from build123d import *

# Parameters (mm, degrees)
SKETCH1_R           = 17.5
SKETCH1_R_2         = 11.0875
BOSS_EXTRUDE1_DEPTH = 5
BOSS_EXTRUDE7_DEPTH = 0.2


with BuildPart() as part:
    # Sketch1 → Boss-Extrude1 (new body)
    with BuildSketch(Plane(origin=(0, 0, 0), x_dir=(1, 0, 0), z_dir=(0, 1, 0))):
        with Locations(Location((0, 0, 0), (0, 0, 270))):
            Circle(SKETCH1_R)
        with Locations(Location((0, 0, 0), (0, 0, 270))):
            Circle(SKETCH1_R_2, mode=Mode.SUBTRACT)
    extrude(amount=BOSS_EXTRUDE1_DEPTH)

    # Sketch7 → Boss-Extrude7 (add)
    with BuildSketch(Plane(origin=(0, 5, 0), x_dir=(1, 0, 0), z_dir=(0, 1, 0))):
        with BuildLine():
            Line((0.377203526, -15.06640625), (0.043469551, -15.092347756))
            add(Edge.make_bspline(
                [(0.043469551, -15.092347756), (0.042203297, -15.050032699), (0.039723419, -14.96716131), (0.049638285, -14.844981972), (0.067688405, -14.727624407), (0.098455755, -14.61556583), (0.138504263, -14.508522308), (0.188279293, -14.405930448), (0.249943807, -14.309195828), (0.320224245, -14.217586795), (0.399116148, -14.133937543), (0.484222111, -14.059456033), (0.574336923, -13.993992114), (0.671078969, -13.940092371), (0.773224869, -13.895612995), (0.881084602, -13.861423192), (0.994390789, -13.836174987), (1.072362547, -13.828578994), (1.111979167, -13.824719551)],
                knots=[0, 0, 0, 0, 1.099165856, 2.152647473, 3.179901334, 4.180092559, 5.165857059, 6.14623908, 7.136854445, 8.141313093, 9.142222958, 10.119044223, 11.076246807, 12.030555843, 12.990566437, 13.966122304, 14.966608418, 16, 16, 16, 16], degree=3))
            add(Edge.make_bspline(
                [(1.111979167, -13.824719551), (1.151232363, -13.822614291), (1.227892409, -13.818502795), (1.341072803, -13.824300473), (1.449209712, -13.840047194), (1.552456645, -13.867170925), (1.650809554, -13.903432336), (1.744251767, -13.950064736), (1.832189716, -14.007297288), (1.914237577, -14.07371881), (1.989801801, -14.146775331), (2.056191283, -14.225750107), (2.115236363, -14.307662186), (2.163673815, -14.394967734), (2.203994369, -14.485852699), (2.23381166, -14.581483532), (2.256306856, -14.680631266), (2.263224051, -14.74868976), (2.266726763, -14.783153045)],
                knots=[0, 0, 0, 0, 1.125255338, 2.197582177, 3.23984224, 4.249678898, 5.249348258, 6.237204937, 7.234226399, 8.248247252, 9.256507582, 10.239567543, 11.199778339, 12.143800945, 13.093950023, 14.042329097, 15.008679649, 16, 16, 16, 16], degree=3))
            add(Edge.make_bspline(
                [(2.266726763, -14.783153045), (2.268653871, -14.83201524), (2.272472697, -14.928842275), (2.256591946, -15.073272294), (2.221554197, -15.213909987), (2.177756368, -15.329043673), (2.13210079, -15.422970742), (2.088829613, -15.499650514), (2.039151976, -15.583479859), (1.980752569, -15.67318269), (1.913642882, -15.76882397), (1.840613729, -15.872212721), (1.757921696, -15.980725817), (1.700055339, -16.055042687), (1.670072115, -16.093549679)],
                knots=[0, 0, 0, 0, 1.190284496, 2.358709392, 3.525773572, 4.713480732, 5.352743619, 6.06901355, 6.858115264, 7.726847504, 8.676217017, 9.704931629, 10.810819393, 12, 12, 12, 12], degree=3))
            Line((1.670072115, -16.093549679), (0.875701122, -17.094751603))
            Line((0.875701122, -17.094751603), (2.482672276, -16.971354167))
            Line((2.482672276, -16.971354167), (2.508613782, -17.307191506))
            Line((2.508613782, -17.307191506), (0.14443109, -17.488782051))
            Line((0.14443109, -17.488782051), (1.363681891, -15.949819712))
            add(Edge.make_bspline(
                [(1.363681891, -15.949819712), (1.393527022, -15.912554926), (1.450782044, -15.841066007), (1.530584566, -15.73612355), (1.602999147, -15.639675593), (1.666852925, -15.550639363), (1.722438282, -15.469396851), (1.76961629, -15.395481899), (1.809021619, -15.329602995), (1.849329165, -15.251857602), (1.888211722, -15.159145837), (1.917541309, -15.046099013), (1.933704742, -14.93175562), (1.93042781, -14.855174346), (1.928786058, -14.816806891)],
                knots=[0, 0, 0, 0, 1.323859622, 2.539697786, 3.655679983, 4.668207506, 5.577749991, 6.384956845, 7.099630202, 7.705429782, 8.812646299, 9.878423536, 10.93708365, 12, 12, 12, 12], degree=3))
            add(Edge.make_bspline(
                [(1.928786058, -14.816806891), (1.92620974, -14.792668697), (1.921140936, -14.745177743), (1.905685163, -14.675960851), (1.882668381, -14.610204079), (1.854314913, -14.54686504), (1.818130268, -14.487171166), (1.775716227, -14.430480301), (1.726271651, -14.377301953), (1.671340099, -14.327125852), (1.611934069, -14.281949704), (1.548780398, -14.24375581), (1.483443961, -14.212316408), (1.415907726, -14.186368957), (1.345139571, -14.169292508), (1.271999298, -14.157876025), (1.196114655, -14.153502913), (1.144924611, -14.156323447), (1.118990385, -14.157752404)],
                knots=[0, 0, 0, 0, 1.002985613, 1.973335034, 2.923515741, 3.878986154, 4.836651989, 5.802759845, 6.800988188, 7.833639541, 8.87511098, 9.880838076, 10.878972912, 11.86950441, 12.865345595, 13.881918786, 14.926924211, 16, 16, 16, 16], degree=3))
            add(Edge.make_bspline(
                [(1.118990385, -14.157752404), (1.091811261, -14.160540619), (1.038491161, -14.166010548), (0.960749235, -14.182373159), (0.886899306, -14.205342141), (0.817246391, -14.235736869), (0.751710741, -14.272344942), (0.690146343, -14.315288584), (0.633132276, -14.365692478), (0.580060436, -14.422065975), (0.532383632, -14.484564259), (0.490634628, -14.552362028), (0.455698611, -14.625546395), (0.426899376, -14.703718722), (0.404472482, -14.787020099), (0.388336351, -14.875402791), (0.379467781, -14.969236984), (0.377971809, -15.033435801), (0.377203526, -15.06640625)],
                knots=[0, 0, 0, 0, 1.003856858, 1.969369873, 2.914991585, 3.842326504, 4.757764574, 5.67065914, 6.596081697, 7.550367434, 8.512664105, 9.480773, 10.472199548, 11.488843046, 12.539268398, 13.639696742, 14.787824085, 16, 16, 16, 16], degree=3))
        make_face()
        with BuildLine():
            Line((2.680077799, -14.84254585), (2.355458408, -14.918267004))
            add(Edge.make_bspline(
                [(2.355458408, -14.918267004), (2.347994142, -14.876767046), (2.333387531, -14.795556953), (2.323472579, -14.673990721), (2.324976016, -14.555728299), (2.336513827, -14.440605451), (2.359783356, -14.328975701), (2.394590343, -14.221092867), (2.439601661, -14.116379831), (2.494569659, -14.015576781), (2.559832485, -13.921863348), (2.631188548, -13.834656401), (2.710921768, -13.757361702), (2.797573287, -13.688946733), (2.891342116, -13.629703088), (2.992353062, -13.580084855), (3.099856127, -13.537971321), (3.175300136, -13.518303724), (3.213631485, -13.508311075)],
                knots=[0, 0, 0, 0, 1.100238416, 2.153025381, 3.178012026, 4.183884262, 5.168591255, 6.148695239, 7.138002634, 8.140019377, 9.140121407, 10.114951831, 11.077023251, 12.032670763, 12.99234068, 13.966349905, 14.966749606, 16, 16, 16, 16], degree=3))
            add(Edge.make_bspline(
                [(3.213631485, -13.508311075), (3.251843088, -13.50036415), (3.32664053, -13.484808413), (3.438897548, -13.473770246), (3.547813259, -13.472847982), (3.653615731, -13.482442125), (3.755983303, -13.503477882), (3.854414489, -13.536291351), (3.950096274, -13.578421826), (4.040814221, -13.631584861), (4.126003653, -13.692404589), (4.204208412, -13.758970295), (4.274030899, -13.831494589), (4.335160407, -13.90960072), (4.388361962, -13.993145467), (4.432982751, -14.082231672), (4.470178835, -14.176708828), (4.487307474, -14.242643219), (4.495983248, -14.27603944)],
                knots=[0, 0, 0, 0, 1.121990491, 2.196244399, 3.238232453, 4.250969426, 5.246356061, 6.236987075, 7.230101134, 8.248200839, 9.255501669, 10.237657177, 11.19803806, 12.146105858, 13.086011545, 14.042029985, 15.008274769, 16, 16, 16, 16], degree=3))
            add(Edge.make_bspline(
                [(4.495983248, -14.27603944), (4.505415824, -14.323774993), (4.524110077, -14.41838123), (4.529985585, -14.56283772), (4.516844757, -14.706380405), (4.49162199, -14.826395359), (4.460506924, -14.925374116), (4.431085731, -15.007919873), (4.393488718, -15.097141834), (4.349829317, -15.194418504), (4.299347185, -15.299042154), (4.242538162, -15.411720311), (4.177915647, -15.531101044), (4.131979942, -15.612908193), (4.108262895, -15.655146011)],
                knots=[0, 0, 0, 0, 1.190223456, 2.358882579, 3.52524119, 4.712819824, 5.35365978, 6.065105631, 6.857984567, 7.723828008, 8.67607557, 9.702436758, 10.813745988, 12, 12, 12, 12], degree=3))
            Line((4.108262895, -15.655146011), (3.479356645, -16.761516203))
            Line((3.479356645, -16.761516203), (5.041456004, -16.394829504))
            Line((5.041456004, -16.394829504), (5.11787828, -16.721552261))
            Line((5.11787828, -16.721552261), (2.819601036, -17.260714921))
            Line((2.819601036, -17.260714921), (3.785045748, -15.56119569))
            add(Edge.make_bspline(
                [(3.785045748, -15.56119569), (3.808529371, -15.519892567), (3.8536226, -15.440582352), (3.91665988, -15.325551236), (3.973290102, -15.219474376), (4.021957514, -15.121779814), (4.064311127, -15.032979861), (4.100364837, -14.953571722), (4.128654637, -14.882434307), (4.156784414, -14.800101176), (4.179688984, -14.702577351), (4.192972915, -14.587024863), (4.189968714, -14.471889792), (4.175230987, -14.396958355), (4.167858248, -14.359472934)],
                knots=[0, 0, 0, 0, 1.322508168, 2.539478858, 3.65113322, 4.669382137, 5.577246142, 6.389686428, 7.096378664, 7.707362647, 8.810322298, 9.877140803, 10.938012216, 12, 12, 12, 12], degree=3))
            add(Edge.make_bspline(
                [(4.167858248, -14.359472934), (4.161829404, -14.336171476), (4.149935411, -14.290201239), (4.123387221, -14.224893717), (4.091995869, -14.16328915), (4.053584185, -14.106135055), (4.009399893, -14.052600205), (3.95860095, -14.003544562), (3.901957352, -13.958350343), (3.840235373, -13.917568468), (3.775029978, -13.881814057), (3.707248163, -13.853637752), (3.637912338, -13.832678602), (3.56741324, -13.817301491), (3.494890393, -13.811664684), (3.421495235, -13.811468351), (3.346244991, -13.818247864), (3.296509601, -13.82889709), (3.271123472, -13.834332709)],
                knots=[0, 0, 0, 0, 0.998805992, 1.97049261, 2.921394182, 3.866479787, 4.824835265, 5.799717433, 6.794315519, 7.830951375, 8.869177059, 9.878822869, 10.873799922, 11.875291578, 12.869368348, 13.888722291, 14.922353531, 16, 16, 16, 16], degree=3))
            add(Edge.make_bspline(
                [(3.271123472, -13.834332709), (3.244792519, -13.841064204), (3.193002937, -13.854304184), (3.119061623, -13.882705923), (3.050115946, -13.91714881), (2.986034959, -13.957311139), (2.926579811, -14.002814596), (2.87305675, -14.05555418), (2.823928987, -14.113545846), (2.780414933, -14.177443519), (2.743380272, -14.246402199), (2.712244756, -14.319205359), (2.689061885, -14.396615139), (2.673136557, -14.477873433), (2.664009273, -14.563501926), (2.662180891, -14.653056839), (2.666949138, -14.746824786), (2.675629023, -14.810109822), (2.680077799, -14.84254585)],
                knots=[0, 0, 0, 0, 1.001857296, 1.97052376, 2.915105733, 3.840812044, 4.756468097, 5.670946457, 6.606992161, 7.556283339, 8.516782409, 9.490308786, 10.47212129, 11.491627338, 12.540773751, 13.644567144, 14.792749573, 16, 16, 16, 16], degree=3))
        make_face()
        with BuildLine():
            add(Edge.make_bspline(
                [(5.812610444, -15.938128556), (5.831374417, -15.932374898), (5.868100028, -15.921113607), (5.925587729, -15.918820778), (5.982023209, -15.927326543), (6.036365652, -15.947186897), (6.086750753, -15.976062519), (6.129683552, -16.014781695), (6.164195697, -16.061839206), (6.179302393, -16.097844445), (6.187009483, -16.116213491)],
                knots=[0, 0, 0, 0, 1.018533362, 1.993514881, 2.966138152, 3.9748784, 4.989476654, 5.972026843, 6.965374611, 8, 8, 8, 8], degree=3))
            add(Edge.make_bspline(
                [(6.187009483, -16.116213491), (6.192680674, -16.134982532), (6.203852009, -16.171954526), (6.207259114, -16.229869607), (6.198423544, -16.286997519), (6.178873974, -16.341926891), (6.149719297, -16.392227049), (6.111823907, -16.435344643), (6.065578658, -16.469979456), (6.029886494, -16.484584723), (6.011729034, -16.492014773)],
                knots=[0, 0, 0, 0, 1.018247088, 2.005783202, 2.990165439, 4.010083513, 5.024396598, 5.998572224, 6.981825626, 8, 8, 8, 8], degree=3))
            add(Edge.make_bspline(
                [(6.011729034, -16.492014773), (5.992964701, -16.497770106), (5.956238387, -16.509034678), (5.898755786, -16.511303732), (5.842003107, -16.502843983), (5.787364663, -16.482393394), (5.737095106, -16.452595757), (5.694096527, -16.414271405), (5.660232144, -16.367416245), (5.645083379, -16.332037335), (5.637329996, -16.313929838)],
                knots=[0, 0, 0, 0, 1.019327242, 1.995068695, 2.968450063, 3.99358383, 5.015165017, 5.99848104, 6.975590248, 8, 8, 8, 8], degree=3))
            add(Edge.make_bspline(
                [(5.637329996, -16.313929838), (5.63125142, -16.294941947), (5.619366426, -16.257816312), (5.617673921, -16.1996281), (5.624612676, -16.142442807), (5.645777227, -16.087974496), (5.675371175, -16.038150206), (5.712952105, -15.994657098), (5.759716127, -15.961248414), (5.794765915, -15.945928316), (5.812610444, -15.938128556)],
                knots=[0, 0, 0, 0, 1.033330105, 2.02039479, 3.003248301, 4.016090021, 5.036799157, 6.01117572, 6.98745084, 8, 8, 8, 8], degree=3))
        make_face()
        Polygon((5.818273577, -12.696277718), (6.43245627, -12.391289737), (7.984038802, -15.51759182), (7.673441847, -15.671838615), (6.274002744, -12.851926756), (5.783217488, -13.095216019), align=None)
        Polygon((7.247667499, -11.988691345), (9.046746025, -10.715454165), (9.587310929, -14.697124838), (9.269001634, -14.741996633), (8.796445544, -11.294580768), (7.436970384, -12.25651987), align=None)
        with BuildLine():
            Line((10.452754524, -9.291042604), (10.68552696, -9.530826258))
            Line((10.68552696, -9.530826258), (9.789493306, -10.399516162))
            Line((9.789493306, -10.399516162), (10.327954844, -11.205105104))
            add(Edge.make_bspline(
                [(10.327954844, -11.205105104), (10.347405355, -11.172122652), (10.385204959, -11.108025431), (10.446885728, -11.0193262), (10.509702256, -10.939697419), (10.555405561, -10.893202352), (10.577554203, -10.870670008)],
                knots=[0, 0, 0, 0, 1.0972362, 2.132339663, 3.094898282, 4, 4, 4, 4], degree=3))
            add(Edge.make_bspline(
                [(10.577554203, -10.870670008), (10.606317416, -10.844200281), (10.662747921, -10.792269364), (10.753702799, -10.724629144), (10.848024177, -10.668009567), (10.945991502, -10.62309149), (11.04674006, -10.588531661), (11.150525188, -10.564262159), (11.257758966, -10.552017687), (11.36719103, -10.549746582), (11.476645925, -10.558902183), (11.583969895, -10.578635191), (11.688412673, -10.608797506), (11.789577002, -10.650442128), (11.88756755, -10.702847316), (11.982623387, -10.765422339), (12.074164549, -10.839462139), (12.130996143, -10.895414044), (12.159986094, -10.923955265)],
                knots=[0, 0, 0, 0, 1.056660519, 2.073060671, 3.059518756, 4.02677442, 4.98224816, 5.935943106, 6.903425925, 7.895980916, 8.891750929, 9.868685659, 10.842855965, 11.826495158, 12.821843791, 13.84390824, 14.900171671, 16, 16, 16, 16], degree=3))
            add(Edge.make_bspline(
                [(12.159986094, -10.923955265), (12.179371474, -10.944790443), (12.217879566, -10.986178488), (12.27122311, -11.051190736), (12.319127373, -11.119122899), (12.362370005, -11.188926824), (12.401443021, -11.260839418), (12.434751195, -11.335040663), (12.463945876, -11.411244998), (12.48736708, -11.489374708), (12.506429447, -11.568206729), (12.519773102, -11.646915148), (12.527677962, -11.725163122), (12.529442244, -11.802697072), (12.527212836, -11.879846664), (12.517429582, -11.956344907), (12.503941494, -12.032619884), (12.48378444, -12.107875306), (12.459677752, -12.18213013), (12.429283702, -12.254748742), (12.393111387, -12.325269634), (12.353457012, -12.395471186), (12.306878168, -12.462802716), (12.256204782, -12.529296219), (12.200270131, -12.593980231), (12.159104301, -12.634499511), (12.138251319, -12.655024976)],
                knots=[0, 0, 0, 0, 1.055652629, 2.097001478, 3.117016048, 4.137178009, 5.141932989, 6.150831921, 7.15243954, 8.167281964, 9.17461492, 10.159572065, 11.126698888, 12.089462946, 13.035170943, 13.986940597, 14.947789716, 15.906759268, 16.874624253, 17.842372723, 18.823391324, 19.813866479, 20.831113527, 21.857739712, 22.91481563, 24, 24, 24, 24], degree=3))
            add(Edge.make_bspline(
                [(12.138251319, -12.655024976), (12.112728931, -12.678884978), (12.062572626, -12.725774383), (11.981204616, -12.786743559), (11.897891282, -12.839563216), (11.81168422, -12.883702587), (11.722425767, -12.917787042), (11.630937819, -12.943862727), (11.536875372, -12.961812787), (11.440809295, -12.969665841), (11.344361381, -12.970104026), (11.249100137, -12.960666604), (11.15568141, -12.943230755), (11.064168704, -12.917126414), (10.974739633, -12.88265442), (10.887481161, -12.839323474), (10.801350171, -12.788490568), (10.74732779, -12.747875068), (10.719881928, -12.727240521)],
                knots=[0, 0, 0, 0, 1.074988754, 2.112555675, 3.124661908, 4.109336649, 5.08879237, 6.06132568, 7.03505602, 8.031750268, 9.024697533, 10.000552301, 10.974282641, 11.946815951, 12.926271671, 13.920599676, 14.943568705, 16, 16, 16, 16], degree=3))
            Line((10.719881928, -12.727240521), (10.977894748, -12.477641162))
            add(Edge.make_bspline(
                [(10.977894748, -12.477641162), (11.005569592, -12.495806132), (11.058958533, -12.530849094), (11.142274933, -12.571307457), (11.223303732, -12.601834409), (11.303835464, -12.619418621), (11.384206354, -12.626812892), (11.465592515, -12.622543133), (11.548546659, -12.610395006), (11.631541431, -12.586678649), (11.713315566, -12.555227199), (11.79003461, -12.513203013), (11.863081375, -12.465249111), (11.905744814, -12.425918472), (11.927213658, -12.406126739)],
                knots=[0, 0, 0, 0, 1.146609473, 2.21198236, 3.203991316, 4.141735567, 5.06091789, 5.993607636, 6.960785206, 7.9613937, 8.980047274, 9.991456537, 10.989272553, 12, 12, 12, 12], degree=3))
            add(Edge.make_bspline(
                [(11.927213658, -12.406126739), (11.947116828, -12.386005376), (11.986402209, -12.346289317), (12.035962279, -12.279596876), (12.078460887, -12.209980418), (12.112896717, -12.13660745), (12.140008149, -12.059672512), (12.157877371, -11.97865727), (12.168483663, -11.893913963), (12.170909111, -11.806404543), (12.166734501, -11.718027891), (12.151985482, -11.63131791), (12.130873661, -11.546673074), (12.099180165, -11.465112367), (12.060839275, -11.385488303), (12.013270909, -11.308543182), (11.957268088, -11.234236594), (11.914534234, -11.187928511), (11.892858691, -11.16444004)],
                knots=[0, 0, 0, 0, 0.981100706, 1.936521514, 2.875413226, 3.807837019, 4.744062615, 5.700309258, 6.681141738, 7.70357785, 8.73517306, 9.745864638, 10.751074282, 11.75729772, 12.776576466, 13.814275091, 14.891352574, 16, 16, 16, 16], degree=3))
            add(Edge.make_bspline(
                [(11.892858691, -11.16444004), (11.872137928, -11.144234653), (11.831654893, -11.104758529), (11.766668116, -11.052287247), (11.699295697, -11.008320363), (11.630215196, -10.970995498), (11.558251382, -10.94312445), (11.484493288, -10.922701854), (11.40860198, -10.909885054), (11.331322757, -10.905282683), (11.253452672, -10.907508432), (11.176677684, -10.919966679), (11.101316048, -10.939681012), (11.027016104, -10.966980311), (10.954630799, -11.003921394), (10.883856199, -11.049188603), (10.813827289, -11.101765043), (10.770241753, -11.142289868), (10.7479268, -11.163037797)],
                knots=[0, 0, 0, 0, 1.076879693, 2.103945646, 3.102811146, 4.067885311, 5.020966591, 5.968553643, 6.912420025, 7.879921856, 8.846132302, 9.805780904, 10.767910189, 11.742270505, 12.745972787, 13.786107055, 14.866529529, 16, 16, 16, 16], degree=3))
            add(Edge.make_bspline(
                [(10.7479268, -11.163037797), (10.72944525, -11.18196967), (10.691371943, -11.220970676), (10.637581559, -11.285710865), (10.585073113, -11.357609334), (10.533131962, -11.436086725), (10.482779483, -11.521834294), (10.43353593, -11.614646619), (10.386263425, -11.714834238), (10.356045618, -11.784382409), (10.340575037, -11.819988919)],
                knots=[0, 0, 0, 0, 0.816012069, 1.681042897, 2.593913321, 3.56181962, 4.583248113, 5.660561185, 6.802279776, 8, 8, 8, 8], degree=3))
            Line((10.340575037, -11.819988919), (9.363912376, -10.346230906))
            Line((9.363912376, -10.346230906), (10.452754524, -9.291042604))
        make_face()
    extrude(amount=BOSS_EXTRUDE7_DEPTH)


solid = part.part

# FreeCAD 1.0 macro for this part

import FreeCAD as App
import Part
import Sketcher

doc = App.newDocument("Part")
body = doc.addObject("PartDesign::Body", "Body")

# Sketch on XZ plane
sketch1 = body.newObject("Sketcher::SketchObject", "Sketch")
sketch1.AttachmentSupport = (doc.getObject("XZ_Plane"), [""])
sketch1.MapMode = "FlatFace"
sketch1.addGeometry(Part.Circle(App.Vector(0, 0, 0), App.Vector(0, 0, 1), 18), False)
sketch1.addGeometry(Part.Circle(App.Vector(0, 0, 0), App.Vector(0, 0, 1), 11), False)
sketch1.addConstraint(Sketcher.Constraint("Coincident", 0, 3, -1, 1))
sketch1.addConstraint(Sketcher.Constraint("Coincident", 1, 3, -1, 1))
sketch1.addConstraint(Sketcher.Constraint("Diameter", 0, 35.0))
sketch1.addConstraint(Sketcher.Constraint("Diameter", 1, 22.175))
pad1 = body.newObject("PartDesign::Pad", "Pad")
pad1.Profile = sketch1
pad1.Length = 5
pad1.Reversed = True

# Sketch on XZ plane
sketch2 = body.newObject("Sketcher::SketchObject", "Sketch001")
sketch2.AttachmentSupport = (doc.getObject("XZ_Plane"), [""])
sketch2.MapMode = "FlatFace"
sketch2.AttachmentOffset = App.Placement(App.Vector(0, 0, -5), App.Rotation())
sketch2.addGeometry(Part.LineSegment(App.Vector(0.04347, 15.092348, 0), App.Vector(0.377204, 15.066406, 0)), False)
sketch2.addGeometry(Part.BSplineCurve([App.Vector(1.11899, 14.157752, 0), App.Vector(1.091811, 14.160541, 0), App.Vector(1.038491, 14.166011, 0), App.Vector(0.960749, 14.182373, 0), App.Vector(0.886899, 14.205342, 0), App.Vector(0.817246, 14.235737, 0), App.Vector(0.751711, 14.272345, 0), App.Vector(0.690146, 14.315289, 0), App.Vector(0.633132, 14.365692, 0), App.Vector(0.58006, 14.422066, 0), App.Vector(0.532384, 14.484564, 0), App.Vector(0.490635, 14.552362, 0), App.Vector(0.455699, 14.625546, 0), App.Vector(0.426899, 14.703719, 0), App.Vector(0.404472, 14.78702, 0), App.Vector(0.388336, 14.875403, 0), App.Vector(0.379468, 14.969237, 0), App.Vector(0.377972, 15.033436, 0), App.Vector(0.377204, 15.066406, 0)], [4, 1, 1, 1, 1, 1, 1, 1, 1, 1, 1, 1, 1, 1, 1, 1, 4], [0, 1.003856858, 1.969369873, 2.914991585, 3.842326504, 4.757764574, 5.67065914, 6.596081697, 7.550367434, 8.512664105, 9.480773, 10.472199548, 11.488843046, 12.539268398, 13.639696742, 14.787824085, 16], False, 3, [1, 1, 1, 1, 1, 1, 1, 1, 1, 1, 1, 1, 1, 1, 1, 1, 1, 1, 1], False), False)
sketch2.addGeometry(Part.BSplineCurve([App.Vector(1.928786, 14.816807, 0), App.Vector(1.92621, 14.792669, 0), App.Vector(1.921141, 14.745178, 0), App.Vector(1.905685, 14.675961, 0), App.Vector(1.882668, 14.610204, 0), App.Vector(1.854315, 14.546865, 0), App.Vector(1.81813, 14.487171, 0), App.Vector(1.775716, 14.43048, 0), App.Vector(1.726272, 14.377302, 0), App.Vector(1.67134, 14.327126, 0), App.Vector(1.611934, 14.28195, 0), App.Vector(1.54878, 14.243756, 0), App.Vector(1.483444, 14.212316, 0), App.Vector(1.415908, 14.186369, 0), App.Vector(1.34514, 14.169293, 0), App.Vector(1.271999, 14.157876, 0), App.Vector(1.196115, 14.153503, 0), App.Vector(1.144925, 14.156323, 0), App.Vector(1.11899, 14.157752, 0)], [4, 1, 1, 1, 1, 1, 1, 1, 1, 1, 1, 1, 1, 1, 1, 1, 4], [0, 1.002985613, 1.973335034, 2.923515741, 3.878986154, 4.836651989, 5.802759845, 6.800988188, 7.833639541, 8.87511098, 9.880838076, 10.878972912, 11.86950441, 12.865345595, 13.881918786, 14.926924211, 16], False, 3, [1, 1, 1, 1, 1, 1, 1, 1, 1, 1, 1, 1, 1, 1, 1, 1, 1, 1, 1], False), False)
sketch2.addGeometry(Part.BSplineCurve([App.Vector(1.363682, 15.94982, 0), App.Vector(1.393527, 15.912555, 0), App.Vector(1.450782, 15.841066, 0), App.Vector(1.530585, 15.736124, 0), App.Vector(1.602999, 15.639676, 0), App.Vector(1.666853, 15.550639, 0), App.Vector(1.722438, 15.469397, 0), App.Vector(1.769616, 15.395482, 0), App.Vector(1.809022, 15.329603, 0), App.Vector(1.849329, 15.251858, 0), App.Vector(1.888212, 15.159146, 0), App.Vector(1.917541, 15.046099, 0), App.Vector(1.933705, 14.931756, 0), App.Vector(1.930428, 14.855174, 0), App.Vector(1.928786, 14.816807, 0)], [4, 1, 1, 1, 1, 1, 1, 1, 1, 1, 1, 1, 4], [0, 1.323859622, 2.539697786, 3.655679983, 4.668207506, 5.577749991, 6.384956845, 7.099630202, 7.705429782, 8.812646299, 9.878423536, 10.93708365, 12], False, 3, [1, 1, 1, 1, 1, 1, 1, 1, 1, 1, 1, 1, 1, 1, 1], False), False)
sketch2.addGeometry(Part.LineSegment(App.Vector(1.363682, 15.94982, 0), App.Vector(0.144431, 17.488782, 0)), False)
sketch2.addGeometry(Part.LineSegment(App.Vector(0.144431, 17.488782, 0), App.Vector(2.508614, 17.307192, 0)), False)
sketch2.addGeometry(Part.LineSegment(App.Vector(2.508614, 17.307192, 0), App.Vector(2.482672, 16.971354, 0)), False)
sketch2.addGeometry(Part.LineSegment(App.Vector(2.482672, 16.971354, 0), App.Vector(0.875701, 17.094752, 0)), False)
sketch2.addGeometry(Part.LineSegment(App.Vector(0.875701, 17.094752, 0), App.Vector(1.670072, 16.09355, 0)), False)
sketch2.addGeometry(Part.BSplineCurve([App.Vector(2.266727, 14.783153, 0), App.Vector(2.268654, 14.832015, 0), App.Vector(2.272473, 14.928842, 0), App.Vector(2.256592, 15.073272, 0), App.Vector(2.221554, 15.21391, 0), App.Vector(2.177756, 15.329044, 0), App.Vector(2.132101, 15.422971, 0), App.Vector(2.08883, 15.499651, 0), App.Vector(2.039152, 15.58348, 0), App.Vector(1.980753, 15.673183, 0), App.Vector(1.913643, 15.768824, 0), App.Vector(1.840614, 15.872213, 0), App.Vector(1.757922, 15.980726, 0), App.Vector(1.700055, 16.055043, 0), App.Vector(1.670072, 16.09355, 0)], [4, 1, 1, 1, 1, 1, 1, 1, 1, 1, 1, 1, 4], [0, 1.190284496, 2.358709392, 3.525773572, 4.713480732, 5.352743619, 6.06901355, 6.858115264, 7.726847504, 8.676217017, 9.704931629, 10.810819393, 12], False, 3, [1, 1, 1, 1, 1, 1, 1, 1, 1, 1, 1, 1, 1, 1, 1], False), False)
sketch2.addGeometry(Part.BSplineCurve([App.Vector(1.111979, 13.82472, 0), App.Vector(1.151232, 13.822614, 0), App.Vector(1.227892, 13.818503, 0), App.Vector(1.341073, 13.8243, 0), App.Vector(1.44921, 13.840047, 0), App.Vector(1.552457, 13.867171, 0), App.Vector(1.65081, 13.903432, 0), App.Vector(1.744252, 13.950065, 0), App.Vector(1.83219, 14.007297, 0), App.Vector(1.914238, 14.073719, 0), App.Vector(1.989802, 14.146775, 0), App.Vector(2.056191, 14.22575, 0), App.Vector(2.115236, 14.307662, 0), App.Vector(2.163674, 14.394968, 0), App.Vector(2.203994, 14.485853, 0), App.Vector(2.233812, 14.581484, 0), App.Vector(2.256307, 14.680631, 0), App.Vector(2.263224, 14.74869, 0), App.Vector(2.266727, 14.783153, 0)], [4, 1, 1, 1, 1, 1, 1, 1, 1, 1, 1, 1, 1, 1, 1, 1, 4], [0, 1.125255338, 2.197582177, 3.23984224, 4.249678898, 5.249348258, 6.237204937, 7.234226399, 8.248247252, 9.256507582, 10.239567543, 11.199778339, 12.143800945, 13.093950023, 14.042329097, 15.008679649, 16], False, 3, [1, 1, 1, 1, 1, 1, 1, 1, 1, 1, 1, 1, 1, 1, 1, 1, 1, 1, 1], False), False)
sketch2.addGeometry(Part.BSplineCurve([App.Vector(0.04347, 15.092348, 0), App.Vector(0.042203, 15.050033, 0), App.Vector(0.039723, 14.967161, 0), App.Vector(0.049638, 14.844982, 0), App.Vector(0.067688, 14.727624, 0), App.Vector(0.098456, 14.615566, 0), App.Vector(0.138504, 14.508522, 0), App.Vector(0.188279, 14.40593, 0), App.Vector(0.249944, 14.309196, 0), App.Vector(0.320224, 14.217587, 0), App.Vector(0.399116, 14.133938, 0), App.Vector(0.484222, 14.059456, 0), App.Vector(0.574337, 13.993992, 0), App.Vector(0.671079, 13.940092, 0), App.Vector(0.773225, 13.895613, 0), App.Vector(0.881085, 13.861423, 0), App.Vector(0.994391, 13.836175, 0), App.Vector(1.072363, 13.828579, 0), App.Vector(1.111979, 13.82472, 0)], [4, 1, 1, 1, 1, 1, 1, 1, 1, 1, 1, 1, 1, 1, 1, 1, 4], [0, 1.099165856, 2.152647473, 3.179901334, 4.180092559, 5.165857059, 6.14623908, 7.136854445, 8.141313093, 9.142222958, 10.119044223, 11.076246807, 12.030555843, 12.990566437, 13.966122304, 14.966608418, 16], False, 3, [1, 1, 1, 1, 1, 1, 1, 1, 1, 1, 1, 1, 1, 1, 1, 1, 1, 1, 1], False), False)
sketch2.addGeometry(Part.LineSegment(App.Vector(2.355458, 14.918267, 0), App.Vector(2.680078, 14.842546, 0)), False)
sketch2.addGeometry(Part.BSplineCurve([App.Vector(3.271123, 13.834333, 0), App.Vector(3.244793, 13.841064, 0), App.Vector(3.193003, 13.854304, 0), App.Vector(3.119062, 13.882706, 0), App.Vector(3.050116, 13.917149, 0), App.Vector(2.986035, 13.957311, 0), App.Vector(2.92658, 14.002815, 0), App.Vector(2.873057, 14.055554, 0), App.Vector(2.823929, 14.113546, 0), App.Vector(2.780415, 14.177444, 0), App.Vector(2.74338, 14.246402, 0), App.Vector(2.712245, 14.319205, 0), App.Vector(2.689062, 14.396615, 0), App.Vector(2.673137, 14.477873, 0), App.Vector(2.664009, 14.563502, 0), App.Vector(2.662181, 14.653057, 0), App.Vector(2.666949, 14.746825, 0), App.Vector(2.675629, 14.81011, 0), App.Vector(2.680078, 14.842546, 0)], [4, 1, 1, 1, 1, 1, 1, 1, 1, 1, 1, 1, 1, 1, 1, 1, 4], [0, 1.001857296, 1.97052376, 2.915105733, 3.840812044, 4.756468097, 5.670946457, 6.606992161, 7.556283339, 8.516782409, 9.490308786, 10.47212129, 11.491627338, 12.540773751, 13.644567144, 14.792749573, 16], False, 3, [1, 1, 1, 1, 1, 1, 1, 1, 1, 1, 1, 1, 1, 1, 1, 1, 1, 1, 1], False), False)
sketch2.addGeometry(Part.BSplineCurve([App.Vector(4.167858, 14.359473, 0), App.Vector(4.161829, 14.336171, 0), App.Vector(4.149935, 14.290201, 0), App.Vector(4.123387, 14.224894, 0), App.Vector(4.091996, 14.163289, 0), App.Vector(4.053584, 14.106135, 0), App.Vector(4.0094, 14.0526, 0), App.Vector(3.958601, 14.003545, 0), App.Vector(3.901957, 13.95835, 0), App.Vector(3.840235, 13.917568, 0), App.Vector(3.77503, 13.881814, 0), App.Vector(3.707248, 13.853638, 0), App.Vector(3.637912, 13.832679, 0), App.Vector(3.567413, 13.817301, 0), App.Vector(3.49489, 13.811665, 0), App.Vector(3.421495, 13.811468, 0), App.Vector(3.346245, 13.818248, 0), App.Vector(3.29651, 13.828897, 0), App.Vector(3.271123, 13.834333, 0)], [4, 1, 1, 1, 1, 1, 1, 1, 1, 1, 1, 1, 1, 1, 1, 1, 4], [0, 0.998805992, 1.97049261, 2.921394182, 3.866479787, 4.824835265, 5.799717433, 6.794315519, 7.830951375, 8.869177059, 9.878822869, 10.873799922, 11.875291578, 12.869368348, 13.888722291, 14.922353531, 16], False, 3, [1, 1, 1, 1, 1, 1, 1, 1, 1, 1, 1, 1, 1, 1, 1, 1, 1, 1, 1], False), False)
sketch2.addGeometry(Part.BSplineCurve([App.Vector(3.785046, 15.561196, 0), App.Vector(3.808529, 15.519893, 0), App.Vector(3.853623, 15.440582, 0), App.Vector(3.91666, 15.325551, 0), App.Vector(3.97329, 15.219474, 0), App.Vector(4.021958, 15.12178, 0), App.Vector(4.064311, 15.03298, 0), App.Vector(4.100365, 14.953572, 0), App.Vector(4.128655, 14.882434, 0), App.Vector(4.156784, 14.800101, 0), App.Vector(4.179689, 14.702577, 0), App.Vector(4.192973, 14.587025, 0), App.Vector(4.189969, 14.47189, 0), App.Vector(4.175231, 14.396958, 0), App.Vector(4.167858, 14.359473, 0)], [4, 1, 1, 1, 1, 1, 1, 1, 1, 1, 1, 1, 4], [0, 1.322508168, 2.539478858, 3.65113322, 4.669382137, 5.577246142, 6.389686428, 7.096378664, 7.707362647, 8.810322298, 9.877140803, 10.938012216, 12], False, 3, [1, 1, 1, 1, 1, 1, 1, 1, 1, 1, 1, 1, 1, 1, 1], False), False)
sketch2.addGeometry(Part.LineSegment(App.Vector(3.785046, 15.561196, 0), App.Vector(2.819601, 17.260715, 0)), False)
sketch2.addGeometry(Part.LineSegment(App.Vector(2.819601, 17.260715, 0), App.Vector(5.117878, 16.721552, 0)), False)
sketch2.addGeometry(Part.LineSegment(App.Vector(5.117878, 16.721552, 0), App.Vector(5.041456, 16.39483, 0)), False)
sketch2.addGeometry(Part.LineSegment(App.Vector(5.041456, 16.39483, 0), App.Vector(3.479357, 16.761516, 0)), False)
sketch2.addGeometry(Part.LineSegment(App.Vector(3.479357, 16.761516, 0), App.Vector(4.108263, 15.655146, 0)), False)
sketch2.addGeometry(Part.BSplineCurve([App.Vector(4.495983, 14.276039, 0), App.Vector(4.505416, 14.323775, 0), App.Vector(4.52411, 14.418381, 0), App.Vector(4.529986, 14.562838, 0), App.Vector(4.516845, 14.70638, 0), App.Vector(4.491622, 14.826395, 0), App.Vector(4.460507, 14.925374, 0), App.Vector(4.431086, 15.00792, 0), App.Vector(4.393489, 15.097142, 0), App.Vector(4.349829, 15.194419, 0), App.Vector(4.299347, 15.299042, 0), App.Vector(4.242538, 15.41172, 0), App.Vector(4.177916, 15.531101, 0), App.Vector(4.13198, 15.612908, 0), App.Vector(4.108263, 15.655146, 0)], [4, 1, 1, 1, 1, 1, 1, 1, 1, 1, 1, 1, 4], [0, 1.190223456, 2.358882579, 3.52524119, 4.712819824, 5.35365978, 6.065105631, 6.857984567, 7.723828008, 8.67607557, 9.702436758, 10.813745988, 12], False, 3, [1, 1, 1, 1, 1, 1, 1, 1, 1, 1, 1, 1, 1, 1, 1], False), False)
sketch2.addGeometry(Part.BSplineCurve([App.Vector(3.213631, 13.508311, 0), App.Vector(3.251843, 13.500364, 0), App.Vector(3.326641, 13.484808, 0), App.Vector(3.438898, 13.47377, 0), App.Vector(3.547813, 13.472848, 0), App.Vector(3.653616, 13.482442, 0), App.Vector(3.755983, 13.503478, 0), App.Vector(3.854414, 13.536291, 0), App.Vector(3.950096, 13.578422, 0), App.Vector(4.040814, 13.631585, 0), App.Vector(4.126004, 13.692405, 0), App.Vector(4.204208, 13.75897, 0), App.Vector(4.274031, 13.831495, 0), App.Vector(4.33516, 13.909601, 0), App.Vector(4.388362, 13.993145, 0), App.Vector(4.432983, 14.082232, 0), App.Vector(4.470179, 14.176709, 0), App.Vector(4.487307, 14.242643, 0), App.Vector(4.495983, 14.276039, 0)], [4, 1, 1, 1, 1, 1, 1, 1, 1, 1, 1, 1, 1, 1, 1, 1, 4], [0, 1.121990491, 2.196244399, 3.238232453, 4.250969426, 5.246356061, 6.236987075, 7.230101134, 8.248200839, 9.255501669, 10.237657177, 11.19803806, 12.146105858, 13.086011545, 14.042029985, 15.008274769, 16], False, 3, [1, 1, 1, 1, 1, 1, 1, 1, 1, 1, 1, 1, 1, 1, 1, 1, 1, 1, 1], False), False)
sketch2.addGeometry(Part.BSplineCurve([App.Vector(2.355458, 14.918267, 0), App.Vector(2.347994, 14.876767, 0), App.Vector(2.333388, 14.795557, 0), App.Vector(2.323473, 14.673991, 0), App.Vector(2.324976, 14.555728, 0), App.Vector(2.336514, 14.440605, 0), App.Vector(2.359783, 14.328976, 0), App.Vector(2.39459, 14.221093, 0), App.Vector(2.439602, 14.11638, 0), App.Vector(2.49457, 14.015577, 0), App.Vector(2.559832, 13.921863, 0), App.Vector(2.631189, 13.834656, 0), App.Vector(2.710922, 13.757362, 0), App.Vector(2.797573, 13.688947, 0), App.Vector(2.891342, 13.629703, 0), App.Vector(2.992353, 13.580085, 0), App.Vector(3.099856, 13.537971, 0), App.Vector(3.1753, 13.518304, 0), App.Vector(3.213631, 13.508311, 0)], [4, 1, 1, 1, 1, 1, 1, 1, 1, 1, 1, 1, 1, 1, 1, 1, 4], [0, 1.100238416, 2.153025381, 3.178012026, 4.183884262, 5.168591255, 6.148695239, 7.138002634, 8.140019377, 9.140121407, 10.114951831, 11.077023251, 12.032670763, 12.99234068, 13.966349905, 14.966749606, 16], False, 3, [1, 1, 1, 1, 1, 1, 1, 1, 1, 1, 1, 1, 1, 1, 1, 1, 1, 1, 1], False), False)
sketch2.addGeometry(Part.BSplineCurve([App.Vector(5.81261, 15.938129, 0), App.Vector(5.831374, 15.932375, 0), App.Vector(5.8681, 15.921114, 0), App.Vector(5.925588, 15.918821, 0), App.Vector(5.982023, 15.927327, 0), App.Vector(6.036366, 15.947187, 0), App.Vector(6.086751, 15.976063, 0), App.Vector(6.129684, 16.014782, 0), App.Vector(6.164196, 16.061839, 0), App.Vector(6.179302, 16.097844, 0), App.Vector(6.187009, 16.116213, 0)], [4, 1, 1, 1, 1, 1, 1, 1, 4], [0, 1.018533362, 1.993514881, 2.966138152, 3.9748784, 4.989476654, 5.972026843, 6.965374611, 8], False, 3, [1, 1, 1, 1, 1, 1, 1, 1, 1, 1, 1], False), False)
sketch2.addGeometry(Part.BSplineCurve([App.Vector(5.63733, 16.31393, 0), App.Vector(5.631251, 16.294942, 0), App.Vector(5.619366, 16.257816, 0), App.Vector(5.617674, 16.199628, 0), App.Vector(5.624613, 16.142443, 0), App.Vector(5.645777, 16.087974, 0), App.Vector(5.675371, 16.03815, 0), App.Vector(5.712952, 15.994657, 0), App.Vector(5.759716, 15.961248, 0), App.Vector(5.794766, 15.945928, 0), App.Vector(5.81261, 15.938129, 0)], [4, 1, 1, 1, 1, 1, 1, 1, 4], [0, 1.033330105, 2.02039479, 3.003248301, 4.016090021, 5.036799157, 6.01117572, 6.98745084, 8], False, 3, [1, 1, 1, 1, 1, 1, 1, 1, 1, 1, 1], False), False)
sketch2.addGeometry(Part.BSplineCurve([App.Vector(6.011729, 16.492015, 0), App.Vector(5.992965, 16.49777, 0), App.Vector(5.956238, 16.509035, 0), App.Vector(5.898756, 16.511304, 0), App.Vector(5.842003, 16.502844, 0), App.Vector(5.787365, 16.482393, 0), App.Vector(5.737095, 16.452596, 0), App.Vector(5.694097, 16.414271, 0), App.Vector(5.660232, 16.367416, 0), App.Vector(5.645083, 16.332037, 0), App.Vector(5.63733, 16.31393, 0)], [4, 1, 1, 1, 1, 1, 1, 1, 4], [0, 1.019327242, 1.995068695, 2.968450063, 3.99358383, 5.015165017, 5.99848104, 6.975590248, 8], False, 3, [1, 1, 1, 1, 1, 1, 1, 1, 1, 1, 1], False), False)
sketch2.addGeometry(Part.BSplineCurve([App.Vector(6.187009, 16.116213, 0), App.Vector(6.192681, 16.134983, 0), App.Vector(6.203852, 16.171955, 0), App.Vector(6.207259, 16.22987, 0), App.Vector(6.198424, 16.286998, 0), App.Vector(6.178874, 16.341927, 0), App.Vector(6.149719, 16.392227, 0), App.Vector(6.111824, 16.435345, 0), App.Vector(6.065579, 16.469979, 0), App.Vector(6.029886, 16.484585, 0), App.Vector(6.011729, 16.492015, 0)], [4, 1, 1, 1, 1, 1, 1, 1, 4], [0, 1.018247088, 2.005783202, 2.990165439, 4.010083513, 5.024396598, 5.998572224, 6.981825626, 8], False, 3, [1, 1, 1, 1, 1, 1, 1, 1, 1, 1, 1], False), False)
sketch2.addGeometry(Part.LineSegment(App.Vector(6.432456, 12.39129, 0), App.Vector(5.818274, 12.696278, 0)), False)
sketch2.addGeometry(Part.LineSegment(App.Vector(5.818274, 12.696278, 0), App.Vector(5.783217, 13.095216, 0)), False)
sketch2.addGeometry(Part.LineSegment(App.Vector(5.783217, 13.095216, 0), App.Vector(6.274003, 12.851927, 0)), False)
sketch2.addGeometry(Part.LineSegment(App.Vector(6.274003, 12.851927, 0), App.Vector(7.673442, 15.671839, 0)), False)
sketch2.addGeometry(Part.LineSegment(App.Vector(7.673442, 15.671839, 0), App.Vector(7.984039, 15.517592, 0)), False)
sketch2.addGeometry(Part.LineSegment(App.Vector(7.984039, 15.517592, 0), App.Vector(6.432456, 12.39129, 0)), False)
sketch2.addGeometry(Part.LineSegment(App.Vector(9.046746, 10.715454, 0), App.Vector(7.247667, 11.988691, 0)), False)
sketch2.addGeometry(Part.LineSegment(App.Vector(7.247667, 11.988691, 0), App.Vector(7.43697, 12.25652, 0)), False)
sketch2.addGeometry(Part.LineSegment(App.Vector(7.43697, 12.25652, 0), App.Vector(8.796446, 11.294581, 0)), False)
sketch2.addGeometry(Part.LineSegment(App.Vector(8.796446, 11.294581, 0), App.Vector(9.269002, 14.741997, 0)), False)
sketch2.addGeometry(Part.LineSegment(App.Vector(9.269002, 14.741997, 0), App.Vector(9.587311, 14.697125, 0)), False)
sketch2.addGeometry(Part.LineSegment(App.Vector(9.587311, 14.697125, 0), App.Vector(9.046746, 10.715454, 0)), False)
sketch2.addGeometry(Part.LineSegment(App.Vector(10.685527, 9.530826, 0), App.Vector(10.452755, 9.291043, 0)), False)
sketch2.addGeometry(Part.LineSegment(App.Vector(10.452755, 9.291043, 0), App.Vector(9.363912, 10.346231, 0)), False)
sketch2.addGeometry(Part.LineSegment(App.Vector(9.363912, 10.346231, 0), App.Vector(10.340575, 11.819989, 0)), False)
sketch2.addGeometry(Part.BSplineCurve([App.Vector(10.747927, 11.163038, 0), App.Vector(10.729445, 11.18197, 0), App.Vector(10.691372, 11.220971, 0), App.Vector(10.637582, 11.285711, 0), App.Vector(10.585073, 11.357609, 0), App.Vector(10.533132, 11.436087, 0), App.Vector(10.482779, 11.521834, 0), App.Vector(10.433536, 11.614647, 0), App.Vector(10.386263, 11.714834, 0), App.Vector(10.356046, 11.784382, 0), App.Vector(10.340575, 11.819989, 0)], [4, 1, 1, 1, 1, 1, 1, 1, 4], [0, 0.816012069, 1.681042897, 2.593913321, 3.56181962, 4.583248113, 5.660561185, 6.802279776, 8], False, 3, [1, 1, 1, 1, 1, 1, 1, 1, 1, 1, 1], False), False)
sketch2.addGeometry(Part.BSplineCurve([App.Vector(11.892859, 11.16444, 0), App.Vector(11.872138, 11.144235, 0), App.Vector(11.831655, 11.104759, 0), App.Vector(11.766668, 11.052287, 0), App.Vector(11.699296, 11.00832, 0), App.Vector(11.630215, 10.970995, 0), App.Vector(11.558251, 10.943124, 0), App.Vector(11.484493, 10.922702, 0), App.Vector(11.408602, 10.909885, 0), App.Vector(11.331323, 10.905283, 0), App.Vector(11.253453, 10.907508, 0), App.Vector(11.176678, 10.919967, 0), App.Vector(11.101316, 10.939681, 0), App.Vector(11.027016, 10.96698, 0), App.Vector(10.954631, 11.003921, 0), App.Vector(10.883856, 11.049189, 0), App.Vector(10.813827, 11.101765, 0), App.Vector(10.770242, 11.14229, 0), App.Vector(10.747927, 11.163038, 0)], [4, 1, 1, 1, 1, 1, 1, 1, 1, 1, 1, 1, 1, 1, 1, 1, 4], [0, 1.076879693, 2.103945646, 3.102811146, 4.067885311, 5.020966591, 5.968553643, 6.912420025, 7.879921856, 8.846132302, 9.805780904, 10.767910189, 11.742270505, 12.745972787, 13.786107055, 14.866529529, 16], False, 3, [1, 1, 1, 1, 1, 1, 1, 1, 1, 1, 1, 1, 1, 1, 1, 1, 1, 1, 1], False), False)
sketch2.addGeometry(Part.BSplineCurve([App.Vector(11.927214, 12.406127, 0), App.Vector(11.947117, 12.386005, 0), App.Vector(11.986402, 12.346289, 0), App.Vector(12.035962, 12.279597, 0), App.Vector(12.078461, 12.20998, 0), App.Vector(12.112897, 12.136607, 0), App.Vector(12.140008, 12.059673, 0), App.Vector(12.157877, 11.978657, 0), App.Vector(12.168484, 11.893914, 0), App.Vector(12.170909, 11.806405, 0), App.Vector(12.166735, 11.718028, 0), App.Vector(12.151985, 11.631318, 0), App.Vector(12.130874, 11.546673, 0), App.Vector(12.09918, 11.465112, 0), App.Vector(12.060839, 11.385488, 0), App.Vector(12.013271, 11.308543, 0), App.Vector(11.957268, 11.234237, 0), App.Vector(11.914534, 11.187929, 0), App.Vector(11.892859, 11.16444, 0)], [4, 1, 1, 1, 1, 1, 1, 1, 1, 1, 1, 1, 1, 1, 1, 1, 4], [0, 0.981100706, 1.936521514, 2.875413226, 3.807837019, 4.744062615, 5.700309258, 6.681141738, 7.70357785, 8.73517306, 9.745864638, 10.751074282, 11.75729772, 12.776576466, 13.814275091, 14.891352574, 16], False, 3, [1, 1, 1, 1, 1, 1, 1, 1, 1, 1, 1, 1, 1, 1, 1, 1, 1, 1, 1], False), False)
sketch2.addGeometry(Part.BSplineCurve([App.Vector(10.977895, 12.477641, 0), App.Vector(11.00557, 12.495806, 0), App.Vector(11.058959, 12.530849, 0), App.Vector(11.142275, 12.571307, 0), App.Vector(11.223304, 12.601834, 0), App.Vector(11.303835, 12.619419, 0), App.Vector(11.384206, 12.626813, 0), App.Vector(11.465593, 12.622543, 0), App.Vector(11.548547, 12.610395, 0), App.Vector(11.631541, 12.586679, 0), App.Vector(11.713316, 12.555227, 0), App.Vector(11.790035, 12.513203, 0), App.Vector(11.863081, 12.465249, 0), App.Vector(11.905745, 12.425918, 0), App.Vector(11.927214, 12.406127, 0)], [4, 1, 1, 1, 1, 1, 1, 1, 1, 1, 1, 1, 4], [0, 1.146609473, 2.21198236, 3.203991316, 4.141735567, 5.06091789, 5.993607636, 6.960785206, 7.9613937, 8.980047274, 9.991456537, 10.989272553, 12], False, 3, [1, 1, 1, 1, 1, 1, 1, 1, 1, 1, 1, 1, 1, 1, 1], False), False)
sketch2.addGeometry(Part.LineSegment(App.Vector(10.977895, 12.477641, 0), App.Vector(10.719882, 12.727241, 0)), False)
sketch2.addGeometry(Part.BSplineCurve([App.Vector(12.138251, 12.655025, 0), App.Vector(12.112729, 12.678885, 0), App.Vector(12.062573, 12.725774, 0), App.Vector(11.981205, 12.786744, 0), App.Vector(11.897891, 12.839563, 0), App.Vector(11.811684, 12.883703, 0), App.Vector(11.722426, 12.917787, 0), App.Vector(11.630938, 12.943863, 0), App.Vector(11.536875, 12.961813, 0), App.Vector(11.440809, 12.969666, 0), App.Vector(11.344361, 12.970104, 0), App.Vector(11.2491, 12.960667, 0), App.Vector(11.155681, 12.943231, 0), App.Vector(11.064169, 12.917126, 0), App.Vector(10.97474, 12.882654, 0), App.Vector(10.887481, 12.839323, 0), App.Vector(10.80135, 12.788491, 0), App.Vector(10.747328, 12.747875, 0), App.Vector(10.719882, 12.727241, 0)], [4, 1, 1, 1, 1, 1, 1, 1, 1, 1, 1, 1, 1, 1, 1, 1, 4], [0, 1.074988754, 2.112555675, 3.124661908, 4.109336649, 5.08879237, 6.06132568, 7.03505602, 8.031750268, 9.024697533, 10.000552301, 10.974282641, 11.946815951, 12.926271671, 13.920599676, 14.943568705, 16], False, 3, [1, 1, 1, 1, 1, 1, 1, 1, 1, 1, 1, 1, 1, 1, 1, 1, 1, 1, 1], False), False)
sketch2.addGeometry(Part.BSplineCurve([App.Vector(12.159986, 10.923955, 0), App.Vector(12.179371, 10.94479, 0), App.Vector(12.21788, 10.986178, 0), App.Vector(12.271223, 11.051191, 0), App.Vector(12.319127, 11.119123, 0), App.Vector(12.36237, 11.188927, 0), App.Vector(12.401443, 11.260839, 0), App.Vector(12.434751, 11.335041, 0), App.Vector(12.463946, 11.411245, 0), App.Vector(12.487367, 11.489375, 0), App.Vector(12.506429, 11.568207, 0), App.Vector(12.519773, 11.646915, 0), App.Vector(12.527678, 11.725163, 0), App.Vector(12.529442, 11.802697, 0), App.Vector(12.527213, 11.879847, 0), App.Vector(12.51743, 11.956345, 0), App.Vector(12.503941, 12.03262, 0), App.Vector(12.483784, 12.107875, 0), App.Vector(12.459678, 12.18213, 0), App.Vector(12.429284, 12.254749, 0), App.Vector(12.393111, 12.32527, 0), App.Vector(12.353457, 12.395471, 0), App.Vector(12.306878, 12.462803, 0), App.Vector(12.256205, 12.529296, 0), App.Vector(12.20027, 12.59398, 0), App.Vector(12.159104, 12.6345, 0), App.Vector(12.138251, 12.655025, 0)], [4, 1, 1, 1, 1, 1, 1, 1, 1, 1, 1, 1, 1, 1, 1, 1, 1, 1, 1, 1, 1, 1, 1, 1, 4], [0, 1.055652629, 2.097001478, 3.117016048, 4.137178009, 5.141932989, 6.150831921, 7.15243954, 8.167281964, 9.17461492, 10.159572065, 11.126698888, 12.089462946, 13.035170943, 13.986940597, 14.947789716, 15.906759268, 16.874624253, 17.842372723, 18.823391324, 19.813866479, 20.831113527, 21.857739712, 22.91481563, 24], False, 3, [1, 1, 1, 1, 1, 1, 1, 1, 1, 1, 1, 1, 1, 1, 1, 1, 1, 1, 1, 1, 1, 1, 1, 1, 1, 1, 1], False), False)
sketch2.addGeometry(Part.BSplineCurve([App.Vector(10.577554, 10.87067, 0), App.Vector(10.606317, 10.8442, 0), App.Vector(10.662748, 10.792269, 0), App.Vector(10.753703, 10.724629, 0), App.Vector(10.848024, 10.66801, 0), App.Vector(10.945992, 10.623091, 0), App.Vector(11.04674, 10.588532, 0), App.Vector(11.150525, 10.564262, 0), App.Vector(11.257759, 10.552018, 0), App.Vector(11.367191, 10.549747, 0), App.Vector(11.476646, 10.558902, 0), App.Vector(11.58397, 10.578635, 0), App.Vector(11.688413, 10.608798, 0), App.Vector(11.789577, 10.650442, 0), App.Vector(11.887568, 10.702847, 0), App.Vector(11.982623, 10.765422, 0), App.Vector(12.074165, 10.839462, 0), App.Vector(12.130996, 10.895414, 0), App.Vector(12.159986, 10.923955, 0)], [4, 1, 1, 1, 1, 1, 1, 1, 1, 1, 1, 1, 1, 1, 1, 1, 4], [0, 1.056660519, 2.073060671, 3.059518756, 4.02677442, 4.98224816, 5.935943106, 6.903425925, 7.895980916, 8.891750929, 9.868685659, 10.842855965, 11.826495158, 12.821843791, 13.84390824, 14.900171671, 16], False, 3, [1, 1, 1, 1, 1, 1, 1, 1, 1, 1, 1, 1, 1, 1, 1, 1, 1, 1, 1], False), False)
sketch2.addGeometry(Part.BSplineCurve([App.Vector(10.327955, 11.205105, 0), App.Vector(10.347405, 11.172123, 0), App.Vector(10.385205, 11.108025, 0), App.Vector(10.446886, 11.019326, 0), App.Vector(10.509702, 10.939697, 0), App.Vector(10.555406, 10.893202, 0), App.Vector(10.577554, 10.87067, 0)], [4, 1, 1, 1, 4], [0, 1.0972362, 2.132339663, 3.094898282, 4], False, 3, [1, 1, 1, 1, 1, 1, 1], False), False)
sketch2.addGeometry(Part.LineSegment(App.Vector(10.327955, 11.205105, 0), App.Vector(9.789493, 10.399516, 0)), False)
sketch2.addGeometry(Part.LineSegment(App.Vector(9.789493, 10.399516, 0), App.Vector(10.685527, 9.530826, 0)), False)
sketch2.addConstraint(Sketcher.Constraint("Block", 1))
sketch2.addConstraint(Sketcher.Constraint("Block", 2))
sketch2.addConstraint(Sketcher.Constraint("Block", 3))
sketch2.addConstraint(Sketcher.Constraint("Block", 9))
sketch2.addConstraint(Sketcher.Constraint("Block", 10))
sketch2.addConstraint(Sketcher.Constraint("Block", 11))
sketch2.addConstraint(Sketcher.Constraint("Block", 13))
sketch2.addConstraint(Sketcher.Constraint("Block", 14))
sketch2.addConstraint(Sketcher.Constraint("Block", 15))
sketch2.addConstraint(Sketcher.Constraint("Block", 21))
sketch2.addConstraint(Sketcher.Constraint("Block", 22))
sketch2.addConstraint(Sketcher.Constraint("Block", 23))
sketch2.addConstraint(Sketcher.Constraint("Block", 24))
sketch2.addConstraint(Sketcher.Constraint("Block", 25))
sketch2.addConstraint(Sketcher.Constraint("Block", 26))
sketch2.addConstraint(Sketcher.Constraint("Block", 27))
sketch2.addConstraint(Sketcher.Constraint("Block", 43))
sketch2.addConstraint(Sketcher.Constraint("Block", 44))
sketch2.addConstraint(Sketcher.Constraint("Block", 45))
sketch2.addConstraint(Sketcher.Constraint("Block", 46))
sketch2.addConstraint(Sketcher.Constraint("Block", 48))
sketch2.addConstraint(Sketcher.Constraint("Block", 49))
sketch2.addConstraint(Sketcher.Constraint("Block", 50))
sketch2.addConstraint(Sketcher.Constraint("Block", 51))
sketch2.addConstraint(Sketcher.Constraint("Coincident", 0, 2, 1, 2))
sketch2.addConstraint(Sketcher.Constraint("Coincident", 3, 1, 4, 1))
sketch2.addConstraint(Sketcher.Constraint("Coincident", 4, 2, 5, 1))
sketch2.addConstraint(Sketcher.Constraint("Coincident", 5, 2, 6, 1))
sketch2.addConstraint(Sketcher.Constraint("Coincident", 6, 2, 7, 1))
sketch2.addConstraint(Sketcher.Constraint("Coincident", 7, 2, 8, 1))
sketch2.addConstraint(Sketcher.Constraint("Coincident", 8, 2, 9, 2))
sketch2.addConstraint(Sketcher.Constraint("Coincident", 11, 1, 0, 1))
sketch2.addConstraint(Sketcher.Constraint("Coincident", 12, 2, 13, 2))
sketch2.addConstraint(Sketcher.Constraint("Coincident", 15, 1, 16, 1))
sketch2.addConstraint(Sketcher.Constraint("Coincident", 16, 2, 17, 1))
sketch2.addConstraint(Sketcher.Constraint("Coincident", 17, 2, 18, 1))
sketch2.addConstraint(Sketcher.Constraint("Coincident", 18, 2, 19, 1))
sketch2.addConstraint(Sketcher.Constraint("Coincident", 19, 2, 20, 1))
sketch2.addConstraint(Sketcher.Constraint("Coincident", 20, 2, 21, 2))
sketch2.addConstraint(Sketcher.Constraint("Coincident", 23, 1, 12, 1))
sketch2.addConstraint(Sketcher.Constraint("Coincident", 28, 2, 29, 1))
sketch2.addConstraint(Sketcher.Constraint("Coincident", 29, 2, 30, 1))
sketch2.addConstraint(Sketcher.Constraint("Coincident", 30, 2, 31, 1))
sketch2.addConstraint(Sketcher.Constraint("Coincident", 31, 2, 32, 1))
sketch2.addConstraint(Sketcher.Constraint("Coincident", 32, 2, 33, 1))
sketch2.addConstraint(Sketcher.Constraint("Coincident", 33, 2, 28, 1))
sketch2.addConstraint(Sketcher.Constraint("Coincident", 34, 2, 35, 1))
sketch2.addConstraint(Sketcher.Constraint("Coincident", 35, 2, 36, 1))
sketch2.addConstraint(Sketcher.Constraint("Coincident", 36, 2, 37, 1))
sketch2.addConstraint(Sketcher.Constraint("Coincident", 37, 2, 38, 1))
sketch2.addConstraint(Sketcher.Constraint("Coincident", 38, 2, 39, 1))
sketch2.addConstraint(Sketcher.Constraint("Coincident", 39, 2, 34, 1))
sketch2.addConstraint(Sketcher.Constraint("Coincident", 40, 2, 41, 1))
sketch2.addConstraint(Sketcher.Constraint("Coincident", 41, 2, 42, 1))
sketch2.addConstraint(Sketcher.Constraint("Coincident", 42, 2, 43, 2))
sketch2.addConstraint(Sketcher.Constraint("Coincident", 46, 1, 47, 1))
sketch2.addConstraint(Sketcher.Constraint("Coincident", 47, 2, 48, 2))
sketch2.addConstraint(Sketcher.Constraint("Coincident", 51, 1, 52, 1))
sketch2.addConstraint(Sketcher.Constraint("Coincident", 52, 2, 53, 1))
sketch2.addConstraint(Sketcher.Constraint("Coincident", 53, 2, 40, 1))
sketch2.addConstraint(Sketcher.Constraint("DistanceX", -1, 1, 37, 2, 9.269002))
sketch2.addConstraint(Sketcher.Constraint("Distance", 7, 1.611702))
sketch2.addConstraint(Sketcher.Constraint("DistanceX", -1, 1, 7, 2, 0.875701))
sketch2.addConstraint(Sketcher.Constraint("DistanceX", -1, 1, 16, 2, 2.819601))
sketch2.addConstraint(Sketcher.Constraint("DistanceX", 8, 2, 6, 2, 0.8126))
sketch2.addConstraint(Sketcher.Constraint("DistanceY", 8, 2, 7, 2, 1.001202))
sketch2.addConstraint(Sketcher.Constraint("DistanceY", 17, 2, 6, 2, 0.249802))
sketch2.addConstraint(Sketcher.Constraint("DistanceX", 12, 2, 17, 2, 2.4378))
sketch2.addConstraint(Sketcher.Constraint("DistanceY", 19, 2, 16, 2, 0.499199))
sketch2.addConstraint(Sketcher.Constraint("DistanceX", 19, 2, 18, 2, 1.562099))
sketch2.addConstraint(Sketcher.Constraint("DistanceY", 34, 2, 33, 2, 0.402598))
sketch2.addConstraint(Sketcher.Constraint("DistanceY", 34, 2, 32, 2, 3.5289))
sketch2.addConstraint(Sketcher.Constraint("DistanceX", 36, 2, 39, 2, 0.2503))
sketch2.addConstraint(Sketcher.Constraint("DistanceX", 33, 2, 40, 2, 4.020298))
sketch2.addConstraint(Sketcher.Constraint("Distance", 4, 1.96341))
sketch2.addConstraint(Sketcher.Constraint("Distance", 18, 0.335542))
sketch2.addConstraint(Sketcher.Constraint("Distance", 19, 1.60456))
sketch2.addConstraint(Sketcher.Constraint("Distance", 28, 0.685739))
sketch2.addConstraint(Sketcher.Constraint("Distance", 31, 3.148068))
sketch2.addConstraint(Sketcher.Constraint("Distance", 32, 0.346789))
sketch2.addConstraint(Sketcher.Constraint("DistanceX", -1, 1, 4, 2, 0.144431))
sketch2.addConstraint(Sketcher.Constraint("DistanceY", -1, 1, 5, 2, 17.307192))
sketch2.addConstraint(Sketcher.Constraint("DistanceY", -1, 1, 18, 2, 16.39483))
sketch2.addConstraint(Sketcher.Constraint("DistanceX", -1, 1, 31, 2, 7.673442))
sketch2.addConstraint(Sketcher.Constraint("DistanceY", -1, 1, 31, 2, 15.671839))
sketch2.addConstraint(Sketcher.Constraint("DistanceX", -1, 1, 32, 2, 7.984039))
sketch2.addConstraint(Sketcher.Constraint("DistanceX", -1, 1, 35, 2, 7.43697))
sketch2.addConstraint(Sketcher.Constraint("DistanceY", -1, 1, 35, 2, 12.25652))
sketch2.addConstraint(Sketcher.Constraint("DistanceY", -1, 1, 36, 2, 11.294581))
sketch2.addConstraint(Sketcher.Constraint("DistanceX", -1, 1, 38, 2, 9.587311))
sketch2.addConstraint(Sketcher.Constraint("DistanceY", -1, 1, 41, 2, 10.346231))
sketch2.addConstraint(Sketcher.Constraint("DistanceX", 0, 2, 5, 2, 2.13141))
sketch2.addConstraint(Sketcher.Constraint("DistanceX", 20, 2, 28, 2, 1.710011))
sketch2.addConstraint(Sketcher.Constraint("DistanceY", 28, 2, 20, 2, 2.958868))
sketch2.addConstraint(Sketcher.Constraint("DistanceY", 28, 2, 29, 2, 0.398938))
sketch2.addConstraint(Sketcher.Constraint("DistanceX", 18, 2, 29, 2, 0.741761))
sketch2.addConstraint(Sketcher.Constraint("DistanceX", 28, 2, 30, 2, 0.455729))
sketch2.addConstraint(Sketcher.Constraint("DistanceX", 33, 2, 34, 2, 0.815211))
sketch2.addConstraint(Sketcher.Constraint("DistanceX", 34, 2, 36, 2, 1.548778))
sketch2.addConstraint(Sketcher.Constraint("DistanceY", 37, 2, 31, 2, 0.929842))
sketch2.addConstraint(Sketcher.Constraint("DistanceY", 38, 2, 37, 2, 0.044872))
sketch2.addConstraint(Sketcher.Constraint("DistanceY", 40, 2, 39, 2, 1.424412))
sketch2.addConstraint(Sketcher.Constraint("DistanceY", 40, 2, 36, 2, 2.003538))
sketch2.addConstraint(Sketcher.Constraint("DistanceX", 35, 2, 41, 2, 1.926942))
sketch2.addConstraint(Sketcher.Constraint("DistanceX", 41, 2, 52, 2, 0.425581))
sketch2.addConstraint(Sketcher.Constraint("DistanceY", 52, 2, 39, 2, 0.315938))
sketch2.addConstraint(Sketcher.Constraint("DistanceY", 53, 2, 52, 2, 0.86869))
sketch2.addConstraint(Sketcher.Constraint("DistanceX", 39, 2, 53, 2, 1.638781))
pad2 = body.newObject("PartDesign::Pad", "Pad001")
pad2.Profile = sketch2
pad2.Length = 0.2
pad2.Reversed = True

doc.recompute()
